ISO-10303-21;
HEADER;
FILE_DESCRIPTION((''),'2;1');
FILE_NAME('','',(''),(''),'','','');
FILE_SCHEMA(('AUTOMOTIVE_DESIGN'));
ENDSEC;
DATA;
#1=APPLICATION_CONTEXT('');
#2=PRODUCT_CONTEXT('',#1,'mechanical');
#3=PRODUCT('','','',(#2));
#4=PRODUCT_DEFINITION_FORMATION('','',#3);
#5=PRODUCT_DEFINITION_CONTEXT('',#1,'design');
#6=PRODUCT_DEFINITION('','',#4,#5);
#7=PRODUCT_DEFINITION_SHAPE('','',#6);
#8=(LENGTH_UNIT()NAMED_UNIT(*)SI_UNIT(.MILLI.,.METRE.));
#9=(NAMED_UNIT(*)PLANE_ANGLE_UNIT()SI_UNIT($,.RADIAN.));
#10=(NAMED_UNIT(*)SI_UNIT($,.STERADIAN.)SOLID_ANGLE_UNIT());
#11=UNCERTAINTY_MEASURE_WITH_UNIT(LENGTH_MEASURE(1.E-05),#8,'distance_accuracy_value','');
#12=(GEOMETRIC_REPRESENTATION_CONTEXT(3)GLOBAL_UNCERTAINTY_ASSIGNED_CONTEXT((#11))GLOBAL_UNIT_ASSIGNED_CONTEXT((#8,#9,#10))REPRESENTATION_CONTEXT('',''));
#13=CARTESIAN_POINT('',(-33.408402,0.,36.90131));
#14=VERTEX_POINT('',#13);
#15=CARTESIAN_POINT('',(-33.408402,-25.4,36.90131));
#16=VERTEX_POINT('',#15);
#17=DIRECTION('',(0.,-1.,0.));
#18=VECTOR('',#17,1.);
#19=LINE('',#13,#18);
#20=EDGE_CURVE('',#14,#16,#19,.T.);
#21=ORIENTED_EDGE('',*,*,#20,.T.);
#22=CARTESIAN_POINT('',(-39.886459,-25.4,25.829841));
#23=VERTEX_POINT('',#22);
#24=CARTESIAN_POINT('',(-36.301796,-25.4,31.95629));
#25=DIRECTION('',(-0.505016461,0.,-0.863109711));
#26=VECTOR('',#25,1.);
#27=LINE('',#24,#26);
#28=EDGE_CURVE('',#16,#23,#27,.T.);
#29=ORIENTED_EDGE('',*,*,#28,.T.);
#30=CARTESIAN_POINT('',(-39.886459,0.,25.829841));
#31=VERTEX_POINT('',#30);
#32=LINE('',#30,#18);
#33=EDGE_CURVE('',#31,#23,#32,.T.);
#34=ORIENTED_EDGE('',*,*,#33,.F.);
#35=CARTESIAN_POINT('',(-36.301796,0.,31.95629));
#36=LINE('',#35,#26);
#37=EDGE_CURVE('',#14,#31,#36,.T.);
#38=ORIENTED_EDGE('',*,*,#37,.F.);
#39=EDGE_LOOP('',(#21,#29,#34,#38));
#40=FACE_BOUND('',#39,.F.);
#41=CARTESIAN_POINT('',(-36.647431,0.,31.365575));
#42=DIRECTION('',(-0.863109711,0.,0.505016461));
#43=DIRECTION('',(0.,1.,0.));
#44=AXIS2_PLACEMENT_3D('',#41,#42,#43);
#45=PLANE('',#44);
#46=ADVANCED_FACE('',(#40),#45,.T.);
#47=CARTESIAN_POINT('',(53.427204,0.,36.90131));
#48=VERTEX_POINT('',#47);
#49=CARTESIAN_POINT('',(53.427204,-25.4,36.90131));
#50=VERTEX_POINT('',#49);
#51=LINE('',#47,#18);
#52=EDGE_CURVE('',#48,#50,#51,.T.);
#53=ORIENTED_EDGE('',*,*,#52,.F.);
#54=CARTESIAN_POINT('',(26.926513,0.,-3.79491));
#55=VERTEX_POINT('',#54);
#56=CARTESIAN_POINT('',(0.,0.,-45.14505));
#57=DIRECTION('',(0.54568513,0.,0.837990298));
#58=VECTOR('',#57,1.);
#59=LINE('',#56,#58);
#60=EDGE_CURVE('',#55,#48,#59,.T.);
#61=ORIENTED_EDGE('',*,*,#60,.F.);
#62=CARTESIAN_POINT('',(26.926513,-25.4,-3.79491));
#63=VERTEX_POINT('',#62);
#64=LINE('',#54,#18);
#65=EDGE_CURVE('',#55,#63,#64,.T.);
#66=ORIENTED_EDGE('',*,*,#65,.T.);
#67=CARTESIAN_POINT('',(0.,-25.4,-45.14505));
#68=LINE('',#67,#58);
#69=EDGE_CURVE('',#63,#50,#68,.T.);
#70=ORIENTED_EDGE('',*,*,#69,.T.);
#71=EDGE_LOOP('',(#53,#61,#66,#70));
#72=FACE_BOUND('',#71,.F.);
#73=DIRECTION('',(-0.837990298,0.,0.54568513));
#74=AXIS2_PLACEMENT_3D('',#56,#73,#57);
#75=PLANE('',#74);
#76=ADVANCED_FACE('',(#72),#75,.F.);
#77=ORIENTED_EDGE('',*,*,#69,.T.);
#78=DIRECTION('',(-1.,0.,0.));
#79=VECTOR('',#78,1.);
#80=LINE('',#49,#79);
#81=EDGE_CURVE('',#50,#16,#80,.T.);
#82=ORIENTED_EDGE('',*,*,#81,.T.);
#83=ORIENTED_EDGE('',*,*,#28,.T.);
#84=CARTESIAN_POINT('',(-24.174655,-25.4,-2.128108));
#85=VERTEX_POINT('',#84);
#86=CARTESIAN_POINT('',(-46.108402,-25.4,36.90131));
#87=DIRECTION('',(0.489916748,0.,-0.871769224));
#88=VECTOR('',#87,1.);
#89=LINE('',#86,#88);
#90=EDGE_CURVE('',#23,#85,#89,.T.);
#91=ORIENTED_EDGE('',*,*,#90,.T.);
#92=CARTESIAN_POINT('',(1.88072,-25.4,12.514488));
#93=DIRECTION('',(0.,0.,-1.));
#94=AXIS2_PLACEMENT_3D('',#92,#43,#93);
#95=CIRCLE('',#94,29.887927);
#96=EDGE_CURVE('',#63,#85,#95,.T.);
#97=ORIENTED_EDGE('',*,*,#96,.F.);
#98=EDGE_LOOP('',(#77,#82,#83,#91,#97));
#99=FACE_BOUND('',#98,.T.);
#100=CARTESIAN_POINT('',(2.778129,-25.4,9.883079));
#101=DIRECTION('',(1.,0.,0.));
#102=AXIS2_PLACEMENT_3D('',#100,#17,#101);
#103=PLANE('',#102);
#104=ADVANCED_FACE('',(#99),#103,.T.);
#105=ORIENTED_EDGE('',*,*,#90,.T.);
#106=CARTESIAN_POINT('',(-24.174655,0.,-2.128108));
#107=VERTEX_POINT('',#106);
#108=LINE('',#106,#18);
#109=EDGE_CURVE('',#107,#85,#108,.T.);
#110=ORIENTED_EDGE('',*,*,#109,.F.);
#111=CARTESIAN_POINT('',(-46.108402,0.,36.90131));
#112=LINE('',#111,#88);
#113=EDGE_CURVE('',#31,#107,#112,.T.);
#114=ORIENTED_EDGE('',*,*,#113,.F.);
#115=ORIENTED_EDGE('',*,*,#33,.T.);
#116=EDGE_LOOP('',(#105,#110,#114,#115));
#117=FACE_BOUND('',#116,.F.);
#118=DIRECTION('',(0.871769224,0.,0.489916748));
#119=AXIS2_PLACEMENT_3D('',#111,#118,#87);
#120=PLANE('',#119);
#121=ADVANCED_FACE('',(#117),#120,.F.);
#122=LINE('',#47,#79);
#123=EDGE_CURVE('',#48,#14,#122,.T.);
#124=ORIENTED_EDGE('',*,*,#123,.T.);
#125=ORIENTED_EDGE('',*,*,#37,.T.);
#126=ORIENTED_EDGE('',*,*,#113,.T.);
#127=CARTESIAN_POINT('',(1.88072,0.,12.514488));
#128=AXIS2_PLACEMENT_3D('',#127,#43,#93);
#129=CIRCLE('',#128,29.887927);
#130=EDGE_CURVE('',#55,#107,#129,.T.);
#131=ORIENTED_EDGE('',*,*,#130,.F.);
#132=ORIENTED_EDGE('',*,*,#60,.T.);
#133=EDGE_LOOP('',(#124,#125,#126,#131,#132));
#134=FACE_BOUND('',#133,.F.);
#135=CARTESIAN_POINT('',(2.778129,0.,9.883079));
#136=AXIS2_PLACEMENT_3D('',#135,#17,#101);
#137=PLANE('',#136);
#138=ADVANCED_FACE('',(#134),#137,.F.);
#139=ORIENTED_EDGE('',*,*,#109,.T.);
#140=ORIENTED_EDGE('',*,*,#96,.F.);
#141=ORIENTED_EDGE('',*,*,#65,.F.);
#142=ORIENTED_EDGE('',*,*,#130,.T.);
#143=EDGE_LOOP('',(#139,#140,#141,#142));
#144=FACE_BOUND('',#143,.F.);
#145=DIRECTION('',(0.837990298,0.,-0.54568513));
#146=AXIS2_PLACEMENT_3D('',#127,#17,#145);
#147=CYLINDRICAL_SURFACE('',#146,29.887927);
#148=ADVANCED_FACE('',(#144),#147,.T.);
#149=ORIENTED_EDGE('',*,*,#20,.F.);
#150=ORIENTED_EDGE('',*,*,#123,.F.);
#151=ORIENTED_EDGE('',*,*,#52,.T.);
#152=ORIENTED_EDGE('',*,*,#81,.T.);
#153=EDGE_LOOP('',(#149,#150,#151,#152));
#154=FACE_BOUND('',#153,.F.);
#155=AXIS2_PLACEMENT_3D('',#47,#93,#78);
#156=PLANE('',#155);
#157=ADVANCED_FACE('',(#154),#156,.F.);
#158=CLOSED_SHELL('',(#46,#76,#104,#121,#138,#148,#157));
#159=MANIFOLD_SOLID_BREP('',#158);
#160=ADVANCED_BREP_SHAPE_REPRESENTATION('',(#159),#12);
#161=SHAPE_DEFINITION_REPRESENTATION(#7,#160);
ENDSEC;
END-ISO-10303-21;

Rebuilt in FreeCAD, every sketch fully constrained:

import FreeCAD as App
import Part
import Sketcher


def edges_at(feature, points):
    """Names of the edges that pass closest to the given points."""
    edges = feature.Shape.Edges
    near = lambda p: min(range(len(edges)), key=lambda i: edges[i].distToShape(Part.Vertex(*p))[0])
    return sorted({f"Edge{near(p) + 1}" for p in points})

doc = App.newDocument("Part")
params = doc.addObject("Spreadsheet::Sheet", "Params")
for row, (alias, value) in enumerate([
    ("pad1_length", "1 in"),
    ("chamfer_size", "0.5 in"),
    ("fillet_radius", "29.887927 mm"),
], start=1):
    params.set(f"A{row}", alias)
    params.set(f"B{row}", "=" + value)
    params.setAlias(f"B{row}", alias)

body = doc.addObject("PartDesign::Body", "Body")

# Sketch on XZ plane
sketch1 = body.newObject("Sketcher::SketchObject", "Sketch")
sketch1.AttachmentSupport = (doc.getObject("XZ_Plane"), [""])
sketch1.MapMode = "FlatFace"
sketch1.addGeometry([
    Part.LineSegment(App.Vector(53, 37, 0), App.Vector(-46, 37, 0)),
    Part.LineSegment(App.Vector(-46, 37, 0), App.Vector(0, -45, 0)),
    Part.LineSegment(App.Vector(0, -45, 0), App.Vector(53, 37, 0)),
], False)
sketch1.addConstraint([
    Sketcher.Constraint("Coincident", 0, 2, 1, 1),
    Sketcher.Constraint("Coincident", 1, 2, 2, 1),
    Sketcher.Constraint("Coincident", 2, 2, 0, 1),
    Sketcher.Constraint("Horizontal", 0),
    Sketcher.Constraint("PointOnObject", 1, 2, -2),
    Sketcher.Constraint("DistanceX", 0, 2, -1, 1, 46.108402),
    Sketcher.Constraint("Distance", 1, 94.11477),
    Sketcher.Constraint("DistanceX", 0, 2, 0, 1, 99.535606),
    Sketcher.Constraint("DistanceY", -1, 1, 0, 2, 36.90131),
])
pad1 = body.newObject("PartDesign::Pad", "Pad")
pad1.Profile = sketch1
pad1.setExpression("Length", "Params.pad1_length")
doc.recompute()

chamfer = body.newObject("PartDesign::Chamfer", "Chamfer")
chamfer.Base = (pad1, edges_at(pad1, [(-46.108, -12.7, 36.901)]))
chamfer.setExpression("Size", "Params.chamfer_size")
doc.recompute()

fillet = body.newObject("PartDesign::Fillet", "Fillet")
fillet.Base = (chamfer, edges_at(chamfer, [(0, -12.7, -45.145)]))
fillet.setExpression("Radius", "Params.fillet_radius")

doc.recompute()
